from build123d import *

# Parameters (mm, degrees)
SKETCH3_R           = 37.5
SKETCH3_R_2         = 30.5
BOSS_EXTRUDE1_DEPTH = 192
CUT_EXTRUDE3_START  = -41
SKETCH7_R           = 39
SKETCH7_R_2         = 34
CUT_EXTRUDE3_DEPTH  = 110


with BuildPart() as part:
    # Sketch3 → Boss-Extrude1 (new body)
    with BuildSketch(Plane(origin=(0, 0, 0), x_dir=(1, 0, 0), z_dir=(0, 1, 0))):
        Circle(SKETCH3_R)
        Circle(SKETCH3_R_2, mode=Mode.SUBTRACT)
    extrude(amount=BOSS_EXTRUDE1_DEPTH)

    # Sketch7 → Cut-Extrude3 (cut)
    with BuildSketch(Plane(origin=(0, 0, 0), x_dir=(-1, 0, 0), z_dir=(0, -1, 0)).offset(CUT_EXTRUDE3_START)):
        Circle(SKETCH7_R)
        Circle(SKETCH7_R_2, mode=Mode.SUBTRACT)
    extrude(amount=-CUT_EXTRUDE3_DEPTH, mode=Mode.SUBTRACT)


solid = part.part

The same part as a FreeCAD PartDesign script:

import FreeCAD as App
import Part
import Sketcher
from FreeCAD import Vector

doc = App.newDocument("Part")
body = doc.addObject("PartDesign::Body", "Body")

# Sketch on XZ plane
sketch1 = doc.addObject("Sketcher::SketchObject", "Sketch")
body.addObject(sketch1)
sketch1.AttachmentSupport = (doc.XZ_Plane, [""])
sketch1.MapMode = "FlatFace"
sketch1.addGeometry([
    Part.Circle(Vector(0, 0, 0), Vector(0, 0, 1), 38),
    Part.Circle(Vector(0, 0, 0), Vector(0, 0, 1), 30),
], False)
sketch1.addConstraint([
    Sketcher.Constraint("Coincident", 0, 3, -1, 1),
    Sketcher.Constraint("Coincident", 1, 3, -1, 1),
    Sketcher.Constraint("Diameter", 0, 75.0),
    Sketcher.Constraint("Diameter", 1, 61.0),
])
pad1 = doc.addObject("PartDesign::Pad", "Pad")
body.addObject(pad1)
pad1.Profile = sketch1
pad1.Length = 192
pad1.Reversed = True

# Sketch on XZ plane
sketch2 = doc.addObject("Sketcher::SketchObject", "Sketch001")
body.addObject(sketch2)
sketch2.AttachmentSupport = (doc.XZ_Plane, [""])
sketch2.MapMode = "FlatFace"
sketch2.AttachmentOffset = App.Placement(Vector(0, 0, -41), App.Rotation())
sketch2.addGeometry([
    Part.Circle(Vector(0, 0, 0), Vector(0, 0, 1), 39),
    Part.Circle(Vector(0, 0, 0), Vector(0, 0, 1), 34),
], False)
sketch2.addConstraint([
    Sketcher.Constraint("Coincident", 0, 3, -1, 1),
    Sketcher.Constraint("Coincident", 1, 3, -1, 1),
    Sketcher.Constraint("Diameter", 0, 78.0),
    Sketcher.Constraint("Diameter", 1, 68.0),
])
pocket1 = doc.addObject("PartDesign::Pocket", "Pocket")
body.addObject(pocket1)
pocket1.Profile = sketch2
pocket1.Length = 110

doc.recompute()
